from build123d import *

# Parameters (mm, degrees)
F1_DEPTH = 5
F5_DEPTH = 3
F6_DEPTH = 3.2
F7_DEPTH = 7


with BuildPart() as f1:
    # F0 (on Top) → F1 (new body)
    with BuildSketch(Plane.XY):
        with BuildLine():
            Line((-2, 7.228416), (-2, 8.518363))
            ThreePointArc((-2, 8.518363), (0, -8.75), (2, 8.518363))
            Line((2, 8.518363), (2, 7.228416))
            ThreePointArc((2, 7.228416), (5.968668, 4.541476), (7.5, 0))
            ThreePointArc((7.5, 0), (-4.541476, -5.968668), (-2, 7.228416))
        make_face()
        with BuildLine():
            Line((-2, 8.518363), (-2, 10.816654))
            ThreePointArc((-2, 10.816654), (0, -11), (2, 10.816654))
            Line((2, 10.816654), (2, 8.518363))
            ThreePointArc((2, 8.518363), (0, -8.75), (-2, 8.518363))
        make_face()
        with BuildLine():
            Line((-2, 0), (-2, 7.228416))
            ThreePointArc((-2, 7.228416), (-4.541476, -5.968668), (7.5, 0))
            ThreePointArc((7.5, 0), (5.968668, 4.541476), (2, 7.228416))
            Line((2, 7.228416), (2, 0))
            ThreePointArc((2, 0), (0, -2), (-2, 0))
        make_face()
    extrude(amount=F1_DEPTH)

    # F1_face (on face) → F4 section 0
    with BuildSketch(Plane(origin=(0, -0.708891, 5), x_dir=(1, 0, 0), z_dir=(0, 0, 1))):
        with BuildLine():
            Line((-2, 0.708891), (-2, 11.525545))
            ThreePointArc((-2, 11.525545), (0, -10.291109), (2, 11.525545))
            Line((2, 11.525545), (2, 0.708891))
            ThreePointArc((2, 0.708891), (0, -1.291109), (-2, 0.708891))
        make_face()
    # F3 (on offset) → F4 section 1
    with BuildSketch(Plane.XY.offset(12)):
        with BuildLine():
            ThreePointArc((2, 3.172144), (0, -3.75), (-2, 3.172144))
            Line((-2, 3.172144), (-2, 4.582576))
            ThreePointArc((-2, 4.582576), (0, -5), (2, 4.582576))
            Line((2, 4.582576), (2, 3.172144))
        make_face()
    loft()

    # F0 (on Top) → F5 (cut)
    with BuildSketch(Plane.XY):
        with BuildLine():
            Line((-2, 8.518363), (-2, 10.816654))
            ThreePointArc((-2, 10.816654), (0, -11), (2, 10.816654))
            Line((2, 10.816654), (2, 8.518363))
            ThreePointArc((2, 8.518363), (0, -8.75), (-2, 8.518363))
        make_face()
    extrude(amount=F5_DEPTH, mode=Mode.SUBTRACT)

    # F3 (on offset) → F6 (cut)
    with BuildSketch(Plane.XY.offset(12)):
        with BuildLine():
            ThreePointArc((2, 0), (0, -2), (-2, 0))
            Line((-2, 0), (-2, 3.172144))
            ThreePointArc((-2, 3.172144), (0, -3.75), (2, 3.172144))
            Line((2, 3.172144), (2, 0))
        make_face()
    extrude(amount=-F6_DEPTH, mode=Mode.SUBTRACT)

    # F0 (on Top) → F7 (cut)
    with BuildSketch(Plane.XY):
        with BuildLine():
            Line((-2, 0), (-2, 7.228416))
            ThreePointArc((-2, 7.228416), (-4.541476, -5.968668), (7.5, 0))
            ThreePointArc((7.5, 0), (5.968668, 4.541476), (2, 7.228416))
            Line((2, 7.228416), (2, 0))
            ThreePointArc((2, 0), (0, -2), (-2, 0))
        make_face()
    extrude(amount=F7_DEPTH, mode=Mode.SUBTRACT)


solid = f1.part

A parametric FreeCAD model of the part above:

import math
import FreeCAD as App
import Part
import Sketcher
from FreeCAD import Vector

doc = App.newDocument("Part")
params = doc.addObject("Spreadsheet::Sheet", "Params")
for row, (alias, value) in enumerate([
    ("sketch1_radius", "11 mm"),
    ("sketch1_radius2", "2 mm"),
    ("pad1_length", "5 mm"),
    ("sketch2_radius", "11 mm"),
    ("sketch2_radius2", "2 mm"),
    ("sketch3_radius", "5 mm"),
    ("sketch3_radius2", "3.75 mm"),
    ("sketch4_radius", "11 mm"),
    ("sketch4_radius2", "8.75 mm"),
    ("pocket1_length", "3 mm"),
    ("sketch5_radius", "2 mm"),
    ("sketch5_radius2", "3.75 mm"),
    ("pocket2_length", "3.2 mm"),
    ("sketch6_radius", "2 mm"),
    ("sketch6_radius2", "7.5 mm"),
    ("pocket3_length", "7 mm"),
], start=1):
    params.set(f"A{row}", alias)
    params.set(f"B{row}", "=" + value)
    params.setAlias(f"B{row}", alias)

body = doc.addObject("PartDesign::Body", "Body")

# Sketch on XY plane
sketch1 = body.newObject("Sketcher::SketchObject", "Sketch")
sketch1.AttachmentSupport = (doc.getObject("XY_Plane"), [""])
sketch1.MapMode = "FlatFace"
sketch1.addGeometry(Part.ArcOfCircle(Part.Circle(Vector(0, 0, 0), Vector(0, 0, 1), 11), math.radians(100), math.radians(440)), False)
sketch1.addGeometry(Part.LineSegment(Vector(2, 10.8, 0), Vector(2, 0, 0)), False)
sketch1.addGeometry(Part.ArcOfCircle(Part.Circle(Vector(0, 0, 0), Vector(0, 0, 1), 2), math.radians(180), math.radians(360)), False)
sketch1.addGeometry(Part.LineSegment(Vector(-2, 0, 0), Vector(-2, 10.8, 0)), False)
sketch1.addConstraint(Sketcher.Constraint("Coincident", 0, 2, 1, 1))
sketch1.addConstraint(Sketcher.Constraint("Tangent", 1, 2, 2, 2))
sketch1.addConstraint(Sketcher.Constraint("Tangent", 2, 1, 3, 1))
sketch1.addConstraint(Sketcher.Constraint("Coincident", 3, 2, 0, 1))
sketch1.addConstraint(Sketcher.Constraint("Vertical", 1))
sketch1.addConstraint(Sketcher.Constraint("Vertical", 3))
sketch1.addConstraint(Sketcher.Constraint("Coincident", 0, 3, -1, 1))
sketch1.addConstraint(Sketcher.Constraint("Coincident", 2, 3, -1, 1))
sketch1.addConstraint(Sketcher.Constraint("Radius", 0, 11.0))
sketch1.addConstraint(Sketcher.Constraint("Radius", 2, 2.0))
sketch1.setExpression("Constraints[8]", "Params.sketch1_radius")
sketch1.setExpression("Constraints[9]", "Params.sketch1_radius2")
pad1 = body.newObject("PartDesign::Pad", "Pad")
pad1.Profile = sketch1
pad1.setExpression("Length", "Params.pad1_length")

# Sketch on XY plane
sketch2 = body.newObject("Sketcher::SketchObject", "Sketch001")
sketch2.AttachmentSupport = (doc.getObject("XY_Plane"), [""])
sketch2.MapMode = "FlatFace"
sketch2.AttachmentOffset = App.Placement(Vector(0, 0, 5), App.Rotation())
sketch2.addGeometry(Part.LineSegment(Vector(-2, 0, 0), Vector(-2, 10.8, 0)), False)
sketch2.addGeometry(Part.ArcOfCircle(Part.Circle(Vector(0, 0, 0), Vector(0, 0, 1), 11), math.radians(100), math.radians(440)), False)
sketch2.addGeometry(Part.LineSegment(Vector(2, 10.8, 0), Vector(2, 0, 0)), False)
sketch2.addGeometry(Part.ArcOfCircle(Part.Circle(Vector(0, 0, 0), Vector(0, 0, 1), 2), math.radians(180), math.radians(360)), False)
sketch2.addConstraint(Sketcher.Constraint("Coincident", 0, 2, 1, 1))
sketch2.addConstraint(Sketcher.Constraint("Coincident", 1, 2, 2, 1))
sketch2.addConstraint(Sketcher.Constraint("Tangent", 2, 2, 3, 2))
sketch2.addConstraint(Sketcher.Constraint("Tangent", 3, 1, 0, 1))
sketch2.addConstraint(Sketcher.Constraint("Vertical", 0))
sketch2.addConstraint(Sketcher.Constraint("Vertical", 2))
sketch2.addConstraint(Sketcher.Constraint("Coincident", 1, 3, -1, 1))
sketch2.addConstraint(Sketcher.Constraint("Coincident", 3, 3, -1, 1))
sketch2.addConstraint(Sketcher.Constraint("Radius", 1, 11.0))
sketch2.addConstraint(Sketcher.Constraint("Radius", 3, 2.0))
sketch2.setExpression("Constraints[8]", "Params.sketch2_radius")
sketch2.setExpression("Constraints[9]", "Params.sketch2_radius2")

# Sketch on XY plane
sketch3 = body.newObject("Sketcher::SketchObject", "Sketch002")
sketch3.AttachmentSupport = (doc.getObject("XY_Plane"), [""])
sketch3.MapMode = "FlatFace"
sketch3.AttachmentOffset = App.Placement(Vector(0, 0, 12), App.Rotation())
sketch3.addGeometry(Part.ArcOfCircle(Part.Circle(Vector(0, 0, 0), Vector(0, 0, 1), 3.7), math.radians(122), math.radians(418)), False)
sketch3.addGeometry(Part.LineSegment(Vector(-2, 3.2, 0), Vector(-2, 4.6, 0)), False)
sketch3.addGeometry(Part.ArcOfCircle(Part.Circle(Vector(0, 0, 0), Vector(0, 0, 1), 5), math.radians(114), math.radians(426)), False)
sketch3.addGeometry(Part.LineSegment(Vector(2, 4.6, 0), Vector(2, 3.2, 0)), False)
sketch3.addConstraint(Sketcher.Constraint("Coincident", 0, 1, 1, 1))
sketch3.addConstraint(Sketcher.Constraint("Coincident", 1, 2, 2, 1))
sketch3.addConstraint(Sketcher.Constraint("Coincident", 2, 2, 3, 1))
sketch3.addConstraint(Sketcher.Constraint("Coincident", 3, 2, 0, 2))
sketch3.addConstraint(Sketcher.Constraint("Vertical", 1))
sketch3.addConstraint(Sketcher.Constraint("Vertical", 3))
sketch3.addConstraint(Sketcher.Constraint("Coincident", 0, 3, -1, 1))
sketch3.addConstraint(Sketcher.Constraint("Coincident", 2, 3, -1, 1))
sketch3.addConstraint(Sketcher.Constraint("Horizontal", 1, 2, 2, 2))
sketch3.addConstraint(Sketcher.Constraint("Radius", 2, 5.0))
sketch3.addConstraint(Sketcher.Constraint("Radius", 0, 3.75))
sketch3.addConstraint(Sketcher.Constraint("DistanceX", 0, 1, -1, 1, 2.0))
sketch3.setExpression("Constraints[9]", "Params.sketch3_radius")
sketch3.setExpression("Constraints[10]", "Params.sketch3_radius2")

additiveloft = body.newObject("PartDesign::AdditiveLoft", "AdditiveLoft")
additiveloft.Profile = sketch2
additiveloft.Sections = [sketch3]

# Sketch on XY plane
sketch4 = body.newObject("Sketcher::SketchObject", "Sketch003")
sketch4.AttachmentSupport = (doc.getObject("XY_Plane"), [""])
sketch4.MapMode = "FlatFace"
sketch4.addGeometry(Part.LineSegment(Vector(-2, 8.5, 0), Vector(-2, 10.8, 0)), False)
sketch4.addGeometry(Part.ArcOfCircle(Part.Circle(Vector(0, 0, 0), Vector(0, 0, 1), 11), math.radians(100), math.radians(440)), False)
sketch4.addGeometry(Part.LineSegment(Vector(2, 10.8, 0), Vector(2, 8.5, 0)), False)
sketch4.addGeometry(Part.ArcOfCircle(Part.Circle(Vector(0, 0, 0), Vector(0, 0, 1), 8.8), math.radians(103), math.radians(437)), False)
sketch4.addConstraint(Sketcher.Constraint("Coincident", 0, 2, 1, 1))
sketch4.addConstraint(Sketcher.Constraint("Coincident", 1, 2, 2, 1))
sketch4.addConstraint(Sketcher.Constraint("Coincident", 2, 2, 3, 2))
sketch4.addConstraint(Sketcher.Constraint("Coincident", 3, 1, 0, 1))
sketch4.addConstraint(Sketcher.Constraint("Vertical", 0))
sketch4.addConstraint(Sketcher.Constraint("Vertical", 2))
sketch4.addConstraint(Sketcher.Constraint("Coincident", 1, 3, -1, 1))
sketch4.addConstraint(Sketcher.Constraint("Coincident", 3, 3, -1, 1))
sketch4.addConstraint(Sketcher.Constraint("Horizontal", 0, 2, 1, 2))
sketch4.addConstraint(Sketcher.Constraint("Radius", 1, 11.0))
sketch4.addConstraint(Sketcher.Constraint("Radius", 3, 8.75))
sketch4.addConstraint(Sketcher.Constraint("DistanceX", 0, 2, -1, 1, 2.0))
sketch4.setExpression("Constraints[9]", "Params.sketch4_radius")
sketch4.setExpression("Constraints[10]", "Params.sketch4_radius2")
pocket1 = body.newObject("PartDesign::Pocket", "Pocket")
pocket1.Profile = sketch4
pocket1.setExpression("Length", "Params.pocket1_length")
pocket1.Reversed = True

# Sketch on XY plane
sketch5 = body.newObject("Sketcher::SketchObject", "Sketch004")
sketch5.AttachmentSupport = (doc.getObject("XY_Plane"), [""])
sketch5.MapMode = "FlatFace"
sketch5.AttachmentOffset = App.Placement(Vector(0, 0, 12), App.Rotation())
sketch5.addGeometry(Part.ArcOfCircle(Part.Circle(Vector(0, 0, 0), Vector(0, 0, 1), 2), math.radians(180), math.radians(360)), False)
sketch5.addGeometry(Part.LineSegment(Vector(-2, 0, 0), Vector(-2, 3.2, 0)), False)
sketch5.addGeometry(Part.ArcOfCircle(Part.Circle(Vector(0, 0, 0), Vector(0, 0, 1), 3.7), math.radians(122), math.radians(418)), False)
sketch5.addGeometry(Part.LineSegment(Vector(2, 3.2, 0), Vector(2, 0, 0)), False)
sketch5.addConstraint(Sketcher.Constraint("Tangent", 0, 1, 1, 1))
sketch5.addConstraint(Sketcher.Constraint("Coincident", 1, 2, 2, 1))
sketch5.addConstraint(Sketcher.Constraint("Coincident", 2, 2, 3, 1))
sketch5.addConstraint(Sketcher.Constraint("Tangent", 3, 2, 0, 2))
sketch5.addConstraint(Sketcher.Constraint("Vertical", 1))
sketch5.addConstraint(Sketcher.Constraint("Vertical", 3))
sketch5.addConstraint(Sketcher.Constraint("Coincident", 0, 3, -1, 1))
sketch5.addConstraint(Sketcher.Constraint("Coincident", 2, 3, -1, 1))
sketch5.addConstraint(Sketcher.Constraint("Radius", 0, 2.0))
sketch5.addConstraint(Sketcher.Constraint("Radius", 2, 3.75))
sketch5.setExpression("Constraints[8]", "Params.sketch5_radius")
sketch5.setExpression("Constraints[9]", "Params.sketch5_radius2")
pocket2 = body.newObject("PartDesign::Pocket", "Pocket001")
pocket2.Profile = sketch5
pocket2.setExpression("Length", "Params.pocket2_length")

# Sketch on XY plane
sketch6 = body.newObject("Sketcher::SketchObject", "Sketch005")
sketch6.AttachmentSupport = (doc.getObject("XY_Plane"), [""])
sketch6.MapMode = "FlatFace"
sketch6.addGeometry(Part.LineSegment(Vector(-2, 0, 0), Vector(-2, 7.2, 0)), False)
sketch6.addGeometry(Part.ArcOfCircle(Part.Circle(Vector(0, 0, 0), Vector(0, 0, 1), 7.5), math.radians(105), math.radians(360)), False)
sketch6.addGeometry(Part.ArcOfCircle(Part.Circle(Vector(0, 0, 0), Vector(0, 0, 1), 7.5), math.radians(0), math.radians(75)), False)
sketch6.addGeometry(Part.LineSegment(Vector(2, 7.2, 0), Vector(2, 0, 0)), False)
sketch6.addGeometry(Part.ArcOfCircle(Part.Circle(Vector(0, 0, 0), Vector(0, 0, 1), 2), math.radians(180), math.radians(360)), False)
sketch6.addConstraint(Sketcher.Constraint("Coincident", 0, 2, 1, 1))
sketch6.addConstraint(Sketcher.Constraint("Tangent", 1, 2, 2, 1))
sketch6.addConstraint(Sketcher.Constraint("Coincident", 2, 2, 3, 1))
sketch6.addConstraint(Sketcher.Constraint("Tangent", 3, 2, 4, 2))
sketch6.addConstraint(Sketcher.Constraint("Tangent", 4, 1, 0, 1))
sketch6.addConstraint(Sketcher.Constraint("Vertical", 0))
sketch6.addConstraint(Sketcher.Constraint("Vertical", 3))
sketch6.addConstraint(Sketcher.Constraint("Coincident", 1, 3, -1, 1))
sketch6.addConstraint(Sketcher.Constraint("Coincident", 4, 3, -1, 1))
sketch6.addConstraint(Sketcher.Constraint("Equal", 1, 2))
sketch6.addConstraint(Sketcher.Constraint("PointOnObject", 1, 2, -1))
sketch6.addConstraint(Sketcher.Constraint("Radius", 4, 2.0))
sketch6.addConstraint(Sketcher.Constraint("Radius", 1, 7.5))
sketch6.setExpression("Constraints[11]", "Params.sketch6_radius")
sketch6.setExpression("Constraints[12]", "Params.sketch6_radius2")
pocket3 = body.newObject("PartDesign::Pocket", "Pocket002")
pocket3.Profile = sketch6
pocket3.setExpression("Length", "Params.pocket3_length")
pocket3.Reversed = True

doc.recompute()
